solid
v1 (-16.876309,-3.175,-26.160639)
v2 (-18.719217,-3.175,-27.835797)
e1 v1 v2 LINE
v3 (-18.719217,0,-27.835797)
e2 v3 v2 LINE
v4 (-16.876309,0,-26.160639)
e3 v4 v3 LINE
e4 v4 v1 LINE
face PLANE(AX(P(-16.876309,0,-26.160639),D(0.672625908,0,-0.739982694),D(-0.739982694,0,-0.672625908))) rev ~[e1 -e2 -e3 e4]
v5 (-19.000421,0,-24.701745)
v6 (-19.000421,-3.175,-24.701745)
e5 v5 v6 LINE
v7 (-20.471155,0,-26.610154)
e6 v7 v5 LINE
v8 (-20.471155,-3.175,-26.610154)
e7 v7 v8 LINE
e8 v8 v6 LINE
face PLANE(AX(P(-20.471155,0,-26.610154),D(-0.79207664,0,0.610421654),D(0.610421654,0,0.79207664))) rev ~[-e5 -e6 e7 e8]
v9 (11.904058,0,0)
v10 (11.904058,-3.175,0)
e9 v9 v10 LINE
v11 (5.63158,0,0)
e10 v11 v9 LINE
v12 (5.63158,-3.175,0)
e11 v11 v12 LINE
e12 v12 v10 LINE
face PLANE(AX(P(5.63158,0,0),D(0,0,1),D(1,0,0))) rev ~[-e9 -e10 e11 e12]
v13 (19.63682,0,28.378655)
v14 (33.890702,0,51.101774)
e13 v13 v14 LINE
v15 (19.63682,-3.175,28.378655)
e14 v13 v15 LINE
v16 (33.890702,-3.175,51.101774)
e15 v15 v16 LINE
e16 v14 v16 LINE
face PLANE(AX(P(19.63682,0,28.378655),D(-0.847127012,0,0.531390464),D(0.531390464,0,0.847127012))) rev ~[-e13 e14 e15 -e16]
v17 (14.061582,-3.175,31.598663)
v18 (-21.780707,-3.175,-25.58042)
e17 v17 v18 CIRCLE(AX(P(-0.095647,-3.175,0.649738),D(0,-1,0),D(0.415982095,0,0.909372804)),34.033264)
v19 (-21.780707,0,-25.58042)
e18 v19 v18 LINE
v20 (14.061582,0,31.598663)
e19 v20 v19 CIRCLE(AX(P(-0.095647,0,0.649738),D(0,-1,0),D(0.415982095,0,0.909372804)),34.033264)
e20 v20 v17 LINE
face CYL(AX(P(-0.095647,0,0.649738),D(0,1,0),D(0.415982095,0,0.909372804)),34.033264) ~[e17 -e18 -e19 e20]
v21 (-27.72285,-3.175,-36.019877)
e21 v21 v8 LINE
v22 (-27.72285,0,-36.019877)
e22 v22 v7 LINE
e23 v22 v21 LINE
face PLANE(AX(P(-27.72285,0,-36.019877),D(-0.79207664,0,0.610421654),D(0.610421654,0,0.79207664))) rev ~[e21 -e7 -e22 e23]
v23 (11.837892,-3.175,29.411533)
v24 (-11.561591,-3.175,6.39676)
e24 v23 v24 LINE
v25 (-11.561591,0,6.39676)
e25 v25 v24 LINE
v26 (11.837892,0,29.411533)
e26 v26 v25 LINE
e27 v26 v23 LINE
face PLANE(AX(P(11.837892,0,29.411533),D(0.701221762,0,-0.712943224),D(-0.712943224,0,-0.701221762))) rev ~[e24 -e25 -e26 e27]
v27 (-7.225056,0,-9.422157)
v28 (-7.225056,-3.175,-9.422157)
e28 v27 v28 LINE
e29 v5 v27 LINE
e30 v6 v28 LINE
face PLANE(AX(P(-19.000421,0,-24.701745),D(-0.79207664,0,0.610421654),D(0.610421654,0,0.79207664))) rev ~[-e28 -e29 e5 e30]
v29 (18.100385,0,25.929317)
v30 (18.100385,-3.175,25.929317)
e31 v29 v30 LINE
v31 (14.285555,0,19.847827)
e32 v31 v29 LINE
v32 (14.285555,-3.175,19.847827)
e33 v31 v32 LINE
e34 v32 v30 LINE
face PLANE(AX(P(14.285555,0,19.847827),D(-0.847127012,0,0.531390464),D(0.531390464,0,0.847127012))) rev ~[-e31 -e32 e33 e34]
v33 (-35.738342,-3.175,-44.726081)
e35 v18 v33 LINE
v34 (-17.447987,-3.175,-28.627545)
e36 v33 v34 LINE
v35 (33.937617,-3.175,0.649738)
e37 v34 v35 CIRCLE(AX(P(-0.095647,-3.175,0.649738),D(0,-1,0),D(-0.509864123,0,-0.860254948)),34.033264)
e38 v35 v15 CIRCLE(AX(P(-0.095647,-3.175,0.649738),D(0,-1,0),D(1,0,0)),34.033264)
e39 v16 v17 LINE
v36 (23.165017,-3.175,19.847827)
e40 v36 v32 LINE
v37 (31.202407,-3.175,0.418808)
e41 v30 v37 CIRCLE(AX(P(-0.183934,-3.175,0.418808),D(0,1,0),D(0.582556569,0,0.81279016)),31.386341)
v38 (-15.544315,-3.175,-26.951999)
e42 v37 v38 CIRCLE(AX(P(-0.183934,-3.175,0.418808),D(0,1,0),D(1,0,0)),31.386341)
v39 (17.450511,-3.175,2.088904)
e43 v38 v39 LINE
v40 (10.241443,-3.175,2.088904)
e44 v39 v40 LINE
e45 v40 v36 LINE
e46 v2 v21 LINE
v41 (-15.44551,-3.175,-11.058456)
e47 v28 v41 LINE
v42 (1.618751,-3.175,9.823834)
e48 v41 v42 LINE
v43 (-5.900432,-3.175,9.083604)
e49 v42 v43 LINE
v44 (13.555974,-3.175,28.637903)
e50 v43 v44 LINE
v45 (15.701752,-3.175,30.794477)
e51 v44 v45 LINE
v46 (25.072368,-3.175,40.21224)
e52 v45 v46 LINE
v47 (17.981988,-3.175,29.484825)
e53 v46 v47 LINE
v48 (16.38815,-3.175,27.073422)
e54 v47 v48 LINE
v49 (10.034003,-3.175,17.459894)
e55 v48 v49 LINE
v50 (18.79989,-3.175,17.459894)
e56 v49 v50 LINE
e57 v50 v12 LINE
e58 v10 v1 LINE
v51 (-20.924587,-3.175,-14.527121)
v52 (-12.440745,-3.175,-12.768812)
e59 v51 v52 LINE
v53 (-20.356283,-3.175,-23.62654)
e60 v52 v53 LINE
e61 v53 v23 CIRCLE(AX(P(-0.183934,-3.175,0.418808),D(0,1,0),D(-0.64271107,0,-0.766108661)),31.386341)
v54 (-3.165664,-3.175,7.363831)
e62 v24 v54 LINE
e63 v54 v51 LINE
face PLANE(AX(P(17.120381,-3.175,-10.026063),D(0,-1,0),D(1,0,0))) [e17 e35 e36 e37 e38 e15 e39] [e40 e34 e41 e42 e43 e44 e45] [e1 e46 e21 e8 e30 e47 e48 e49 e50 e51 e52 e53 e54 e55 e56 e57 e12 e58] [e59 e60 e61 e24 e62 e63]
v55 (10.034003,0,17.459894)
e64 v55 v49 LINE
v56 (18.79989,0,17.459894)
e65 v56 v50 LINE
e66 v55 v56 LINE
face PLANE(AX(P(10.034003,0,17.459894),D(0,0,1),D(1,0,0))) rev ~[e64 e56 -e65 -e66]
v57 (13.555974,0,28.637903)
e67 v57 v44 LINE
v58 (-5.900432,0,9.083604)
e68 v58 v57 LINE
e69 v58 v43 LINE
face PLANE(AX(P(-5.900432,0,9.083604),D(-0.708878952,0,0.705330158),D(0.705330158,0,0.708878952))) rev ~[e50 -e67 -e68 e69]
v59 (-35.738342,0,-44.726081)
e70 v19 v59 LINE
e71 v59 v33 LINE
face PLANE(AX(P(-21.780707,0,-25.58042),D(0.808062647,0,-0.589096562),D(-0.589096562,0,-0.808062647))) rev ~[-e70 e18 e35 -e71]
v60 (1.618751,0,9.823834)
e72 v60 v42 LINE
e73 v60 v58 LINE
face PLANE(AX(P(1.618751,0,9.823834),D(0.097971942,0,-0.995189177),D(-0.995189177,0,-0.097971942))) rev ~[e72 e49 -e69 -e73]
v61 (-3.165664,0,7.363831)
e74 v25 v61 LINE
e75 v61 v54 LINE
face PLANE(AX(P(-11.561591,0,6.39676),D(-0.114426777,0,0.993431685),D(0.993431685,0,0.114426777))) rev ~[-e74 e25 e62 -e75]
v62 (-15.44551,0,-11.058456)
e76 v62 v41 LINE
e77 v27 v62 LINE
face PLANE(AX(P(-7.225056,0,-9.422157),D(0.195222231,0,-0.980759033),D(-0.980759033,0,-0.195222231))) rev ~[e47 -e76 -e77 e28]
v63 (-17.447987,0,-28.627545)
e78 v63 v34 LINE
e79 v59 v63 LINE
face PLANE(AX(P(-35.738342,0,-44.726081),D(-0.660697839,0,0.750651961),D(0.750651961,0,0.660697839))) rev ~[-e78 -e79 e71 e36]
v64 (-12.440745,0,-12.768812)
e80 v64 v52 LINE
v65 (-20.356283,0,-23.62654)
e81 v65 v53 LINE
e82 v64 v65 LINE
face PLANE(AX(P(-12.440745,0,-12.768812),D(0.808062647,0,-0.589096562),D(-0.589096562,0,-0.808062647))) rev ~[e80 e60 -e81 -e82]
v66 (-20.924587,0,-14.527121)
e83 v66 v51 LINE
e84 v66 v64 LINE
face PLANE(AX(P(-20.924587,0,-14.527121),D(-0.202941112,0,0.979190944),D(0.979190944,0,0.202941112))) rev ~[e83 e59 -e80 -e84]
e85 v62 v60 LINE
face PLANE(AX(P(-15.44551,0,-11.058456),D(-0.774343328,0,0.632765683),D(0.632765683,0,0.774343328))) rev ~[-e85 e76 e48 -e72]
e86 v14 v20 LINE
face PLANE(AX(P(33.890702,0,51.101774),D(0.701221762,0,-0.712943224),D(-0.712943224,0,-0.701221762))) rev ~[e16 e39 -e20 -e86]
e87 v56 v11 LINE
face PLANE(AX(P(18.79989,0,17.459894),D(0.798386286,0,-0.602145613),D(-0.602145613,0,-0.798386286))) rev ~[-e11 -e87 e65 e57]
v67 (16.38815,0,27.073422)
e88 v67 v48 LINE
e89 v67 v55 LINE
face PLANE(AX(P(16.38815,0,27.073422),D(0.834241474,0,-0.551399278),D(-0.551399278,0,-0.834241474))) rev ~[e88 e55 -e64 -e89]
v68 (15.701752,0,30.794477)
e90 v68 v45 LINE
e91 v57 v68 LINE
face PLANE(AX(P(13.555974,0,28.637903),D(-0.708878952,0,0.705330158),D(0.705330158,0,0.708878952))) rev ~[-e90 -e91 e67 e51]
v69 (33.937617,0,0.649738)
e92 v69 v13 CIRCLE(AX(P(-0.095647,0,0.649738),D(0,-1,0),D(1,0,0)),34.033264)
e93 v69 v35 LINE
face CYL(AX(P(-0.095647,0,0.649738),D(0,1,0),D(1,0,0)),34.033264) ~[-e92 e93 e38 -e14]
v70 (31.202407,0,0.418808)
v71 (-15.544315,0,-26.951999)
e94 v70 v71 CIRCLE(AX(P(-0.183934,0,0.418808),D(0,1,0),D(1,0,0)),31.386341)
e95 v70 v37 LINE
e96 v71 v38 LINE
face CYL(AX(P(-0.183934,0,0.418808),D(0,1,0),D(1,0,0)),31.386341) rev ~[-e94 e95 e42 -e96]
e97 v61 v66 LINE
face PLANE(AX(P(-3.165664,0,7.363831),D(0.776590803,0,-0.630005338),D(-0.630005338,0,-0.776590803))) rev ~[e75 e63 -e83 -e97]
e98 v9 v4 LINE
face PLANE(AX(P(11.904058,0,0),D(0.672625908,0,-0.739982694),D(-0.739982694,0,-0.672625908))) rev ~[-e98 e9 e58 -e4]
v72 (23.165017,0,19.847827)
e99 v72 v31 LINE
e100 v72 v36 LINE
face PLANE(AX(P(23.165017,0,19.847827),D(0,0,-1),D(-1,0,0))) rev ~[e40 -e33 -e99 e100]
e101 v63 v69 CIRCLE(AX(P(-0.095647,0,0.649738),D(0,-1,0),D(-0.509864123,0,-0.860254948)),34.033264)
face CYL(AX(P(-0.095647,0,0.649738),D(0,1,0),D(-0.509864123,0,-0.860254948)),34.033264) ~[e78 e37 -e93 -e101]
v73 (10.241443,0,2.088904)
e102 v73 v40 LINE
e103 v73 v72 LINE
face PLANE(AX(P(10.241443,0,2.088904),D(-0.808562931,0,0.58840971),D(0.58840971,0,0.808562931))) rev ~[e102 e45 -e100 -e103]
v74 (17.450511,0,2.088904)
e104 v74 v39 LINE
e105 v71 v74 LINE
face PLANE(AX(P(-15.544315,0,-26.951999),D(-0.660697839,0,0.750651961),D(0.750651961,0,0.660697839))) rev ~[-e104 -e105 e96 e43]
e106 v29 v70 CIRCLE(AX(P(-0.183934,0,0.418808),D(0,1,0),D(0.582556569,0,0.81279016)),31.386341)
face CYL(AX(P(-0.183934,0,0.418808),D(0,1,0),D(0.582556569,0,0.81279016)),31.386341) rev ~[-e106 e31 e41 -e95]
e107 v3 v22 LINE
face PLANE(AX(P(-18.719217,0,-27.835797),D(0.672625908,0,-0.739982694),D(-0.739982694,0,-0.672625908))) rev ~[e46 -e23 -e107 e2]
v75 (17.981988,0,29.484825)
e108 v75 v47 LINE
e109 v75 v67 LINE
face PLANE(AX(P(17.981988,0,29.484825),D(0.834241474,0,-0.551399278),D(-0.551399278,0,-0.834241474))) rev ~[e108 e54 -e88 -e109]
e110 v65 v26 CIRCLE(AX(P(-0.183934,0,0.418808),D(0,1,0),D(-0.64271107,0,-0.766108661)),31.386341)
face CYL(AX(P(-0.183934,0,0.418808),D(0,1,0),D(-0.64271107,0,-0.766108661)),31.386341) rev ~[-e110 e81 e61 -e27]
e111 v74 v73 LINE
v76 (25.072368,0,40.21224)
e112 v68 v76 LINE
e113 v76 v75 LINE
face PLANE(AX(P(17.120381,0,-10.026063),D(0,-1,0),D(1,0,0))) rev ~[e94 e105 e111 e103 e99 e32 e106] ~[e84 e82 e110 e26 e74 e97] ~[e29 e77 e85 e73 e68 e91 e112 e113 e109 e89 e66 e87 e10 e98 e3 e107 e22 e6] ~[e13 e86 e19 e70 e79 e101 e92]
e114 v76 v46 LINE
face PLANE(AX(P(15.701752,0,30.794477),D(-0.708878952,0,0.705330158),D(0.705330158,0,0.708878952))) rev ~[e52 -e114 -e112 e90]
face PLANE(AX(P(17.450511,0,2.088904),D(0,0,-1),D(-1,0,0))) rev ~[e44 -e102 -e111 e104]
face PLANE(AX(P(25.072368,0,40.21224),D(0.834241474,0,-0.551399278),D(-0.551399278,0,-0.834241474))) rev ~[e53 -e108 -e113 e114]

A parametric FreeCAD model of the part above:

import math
import FreeCAD as App
import Part
import Sketcher

V = App.Vector
Q = App.Units.Quantity


def add_polygon(sketch, points):
    """Adds a closed chain of lines whose ends are joined by coincident constraints."""
    first, n = sketch.GeometryCount, len(points)
    for a, b in zip(points, points[1:] + points[:1]):
        sketch.addGeometry(Part.LineSegment(App.Vector(*a, 0), App.Vector(*b, 0)), False)
    for i in range(n):
        sketch.addConstraint(Sketcher.Constraint("Coincident", first + i, 2, first + (i + 1) % n, 1))

doc = App.newDocument("Part")
body = doc.addObject("PartDesign::Body", "Body")

# Sketch on XZ plane
sketch1 = body.newObject("Sketcher::SketchObject", "Sketch")
sketch1.AttachmentSupport = (doc.getObject("XZ_Plane"), [""])
sketch1.MapMode = "FlatFace"
sketch1.addGeometry(Part.LineSegment(V(-21.780707, -25.58042, 0), V(-35.738342, -44.726081, 0)), False)  # 0
sketch1.addGeometry(Part.LineSegment(V(-35.738342, -44.726081, 0), V(-17.447987, -28.627545, 0)), False)  # 1
sketch1.addGeometry(Part.ArcOfCircle(Part.Circle(V(-0.095647, 0.649738, 0), V(0, 0, 1), 34.033264), math.radians(-120.654779), math.radians(0)), False)  # 2
sketch1.addGeometry(Part.ArcOfCircle(Part.Circle(V(-0.095647, 0.649738, 0), V(0, 0, 1), 34.033264), math.radians(0), math.radians(54.563564)), False)  # 3
sketch1.addGeometry(Part.LineSegment(V(19.63682, 28.378655, 0), V(33.890702, 51.101774, 0)), False)  # 4
sketch1.addGeometry(Part.LineSegment(V(33.890702, 51.101774, 0), V(14.061582, 31.598663, 0)), False)  # 5
sketch1.addGeometry(Part.ArcOfCircle(Part.Circle(V(-0.095647, 0.649738, 0), V(0, 0, 1), 34.033264), math.radians(65.418821), math.radians(230.418698)), False)  # 6
sketch1.addGeometry(Part.ArcOfCircle(Part.Circle(V(-0.183934, 0.418808, 0), V(0, 0, 1), 31.386341), math.radians(0), math.radians(54.36944)), False)  # 7
sketch1.addGeometry(Part.ArcOfCircle(Part.Circle(V(-0.183934, 0.418808, 0), V(0, 0, 1), 31.386341), math.radians(-119.300957), math.radians(0)), False)  # 8
sketch1.addGeometry(Part.LineSegment(V(-15.544315, -26.951999, 0), V(17.450511, 2.088904, 0)), False)  # 9
sketch1.addGeometry(Part.LineSegment(V(17.450511, 2.088904, 0), V(10.241443, 2.088904, 0)), False)  # 10
sketch1.addGeometry(Part.LineSegment(V(10.241443, 2.088904, 0), V(23.165017, 19.847827, 0)), False)  # 11
sketch1.addGeometry(Part.LineSegment(V(23.165017, 19.847827, 0), V(14.285555, 19.847827, 0)), False)  # 12
sketch1.addGeometry(Part.LineSegment(V(14.285555, 19.847827, 0), V(18.100385, 25.929317, 0)), False)  # 13
add_polygon(sketch1, [(-16.876309, -26.160639), (-18.719217, -27.835797), (-27.72285, -36.019877), (-20.471155, -26.610154), (-19.000421, -24.701745), (-7.225056, -9.422157), (-15.44551, -11.058456), (1.618751, 9.823834), (-5.900432, 9.083604), (13.555974, 28.637903), (15.701752, 30.794477), (25.072368, 40.21224), (17.981988, 29.484825), (16.38815, 27.073422), (10.034003, 17.459894), (18.79989, 17.459894), (5.63158, 0), (11.904058, 0)])  # lines 14-31
sketch1.addGeometry(Part.ArcOfCircle(Part.Circle(V(-0.183934, 0.418808, 0), V(0, 0, 1), 31.386341), math.radians(67.478673), math.radians(230.005725)), False)  # 32
sketch1.addGeometry(Part.LineSegment(V(11.837892, 29.411533, 0), V(-11.561591, 6.39676, 0)), False)  # 33
sketch1.addGeometry(Part.LineSegment(V(-11.561591, 6.39676, 0), V(-3.165664, 7.363831, 0)), False)  # 34
sketch1.addGeometry(Part.LineSegment(V(-3.165664, 7.363831, 0), V(-20.924587, -14.527121, 0)), False)  # 35
sketch1.addGeometry(Part.LineSegment(V(-20.924587, -14.527121, 0), V(-12.440745, -12.768812, 0)), False)  # 36
sketch1.addGeometry(Part.LineSegment(V(-12.440745, -12.768812, 0), V(-20.356283, -23.62654, 0)), False)  # 37
sketch1.addConstraint([
    Sketcher.Constraint("Coincident", 0, 2, 1, 1),
    Sketcher.Constraint("Coincident", 1, 2, 2, 1),
    Sketcher.Constraint("Tangent", 2, 2, 3, 1),
    Sketcher.Constraint("Coincident", 3, 2, 4, 1),
    Sketcher.Constraint("Coincident", 4, 2, 5, 1),
    Sketcher.Constraint("Coincident", 5, 2, 6, 1),
    Sketcher.Constraint("Coincident", 6, 2, 0, 1),
    Sketcher.Constraint("Tangent", 7, 1, 8, 2),
    Sketcher.Constraint("Coincident", 8, 1, 9, 1),
    Sketcher.Constraint("Coincident", 9, 2, 10, 1),
    Sketcher.Constraint("Coincident", 10, 2, 11, 1),
    Sketcher.Constraint("Coincident", 11, 2, 12, 1),
    Sketcher.Constraint("Coincident", 12, 2, 13, 1),
    Sketcher.Constraint("Coincident", 13, 2, 7, 2),
    Sketcher.Constraint("Coincident", 32, 1, 33, 1),
    Sketcher.Constraint("Coincident", 33, 2, 34, 1),
    Sketcher.Constraint("Coincident", 34, 2, 35, 1),
    Sketcher.Constraint("Coincident", 35, 2, 36, 1),
    Sketcher.Constraint("Coincident", 36, 2, 37, 1),
    Sketcher.Constraint("Coincident", 37, 2, 32, 2),
    Sketcher.Constraint("Horizontal", 10),
    Sketcher.Constraint("Horizontal", 12),
    Sketcher.Constraint("Horizontal", 28),
    Sketcher.Constraint("Horizontal", 30),
    Sketcher.Constraint("Coincident", 6, 3, 2, 3),
    Sketcher.Constraint("Coincident", 32, 3, 7, 3),
    Sketcher.Constraint("Equal", 2, 3),
    Sketcher.Constraint("Equal", 3, 6),
    Sketcher.Constraint("Equal", 7, 8),
    Sketcher.Constraint("Equal", 8, 32),
    Sketcher.Constraint("PointOnObject", 29, 2, -1),
    Sketcher.Constraint("Parallel", 1, 9),
    Sketcher.Constraint("Parallel", 4, 13),
    Sketcher.Constraint("Parallel", 14, 15),
    Sketcher.Constraint("Parallel", 16, 17),
    Sketcher.Constraint("Parallel", 17, 18),
    Sketcher.Constraint("Parallel", 22, 23),
    Sketcher.Constraint("Parallel", 23, 24),
    Sketcher.Constraint("Parallel", 25, 26),
    Sketcher.Constraint("Parallel", 26, 27),
    Sketcher.Constraint("Parallel", 15, 31),
    Sketcher.Constraint("Parallel", 5, 33),
    Sketcher.Constraint("Parallel", 0, 37),
    Sketcher.Constraint("Horizontal", 6, 3, 2, 2),
    Sketcher.Constraint("Horizontal", 32, 3, 7, 1),
    Sketcher.Constraint("Angle", 16, Q("52.380002 deg")),
    Sketcher.Constraint("Radius", 7, Q("31.386341 mm")),
    Sketcher.Constraint("Radius", 2, Q("34.033264 mm")),
    Sketcher.Constraint("DistanceX", 15, 2, 16, 2, Q("0.2854998 in")),
    Sketcher.Constraint("DistanceX", 10, 2, 10, 1, Q("7.209068 mm")),
    Sketcher.Constraint("DistanceX", 30, 1, 30, 2, Q("6.272478 mm")),
    Sketcher.Constraint("DistanceX", -1, 1, 4, 2, Q("33.890702 mm")),
    Sketcher.Constraint("DistanceY", 8, 1, -1, 1, Q("26.951999 mm")),
    Sketcher.Constraint("DistanceX", 14, 2, 8, 1, Q("3.174901 mm")),
    Sketcher.Constraint("DistanceY", 1, 2, 17, 2, Q("3.9258 mm")),
    Sketcher.Constraint("DistanceY", 19, 2, 18, 2, Q("1.636299 mm")),
    Sketcher.Constraint("DistanceX", 21, 2, 7, 3, Q("5.716499 mm")),
    Sketcher.Constraint("DistanceY", 6, 2, 35, 2, Q("11.0533 mm")),
    Sketcher.Constraint("DistanceY", 31, 2, 37, 2, Q("2.5341 mm")),
    Sketcher.Constraint("Distance", 1, Q("24.365958 mm")),
    Sketcher.Constraint("Distance", 13, Q("7.178959 mm")),
    Sketcher.Constraint("Distance", 20, Q("26.96774 mm")),
    Sketcher.Constraint("Distance", 21, Q("7.555531 mm")),
    Sketcher.Constraint("Distance", 22, Q("27.584822 mm")),
    Sketcher.Constraint("Distance", 23, Q("3.042231 mm")),
    Sketcher.Constraint("Distance", 29, Q("21.86898 mm")),
    Sketcher.Constraint("Distance", 34, Q("8.451439 mm")),
    Sketcher.Constraint("Distance", 37, Q("13.436741 mm")),
    Sketcher.Constraint("DistanceX", 12, 2, 12, 1, Q("8.879462 mm")),
    Sketcher.Constraint("DistanceX", 28, 1, 28, 2, Q("8.765887 mm")),
    Sketcher.Constraint("DistanceY", -1, 1, 2, 3, Q("0.649738 mm")),
    Sketcher.Constraint("DistanceX", 0, 2, -1, 1, Q("35.738342 mm")),
    Sketcher.Constraint("DistanceY", 0, 2, -1, 1, Q("44.726081 mm")),
    Sketcher.Constraint("DistanceX", -1, 1, 3, 2, Q("19.63682 mm")),
    Sketcher.Constraint("DistanceX", -1, 1, 5, 2, Q("14.061582 mm")),
    Sketcher.Constraint("DistanceY", 6, 2, -1, 1, Q("25.58042 mm")),
    Sketcher.Constraint("DistanceX", -1, 1, 9, 2, Q("17.450511 mm")),
    Sketcher.Constraint("DistanceX", 15, 2, -1, 1, Q("27.72285 mm")),
    Sketcher.Constraint("DistanceX", 17, 2, -1, 1, Q("19.000421 mm")),
    Sketcher.Constraint("DistanceX", 19, 2, -1, 1, Q("15.44551 mm")),
    Sketcher.Constraint("DistanceX", -1, 1, 20, 2, Q("1.618751 mm")),
    Sketcher.Constraint("DistanceX", -1, 1, 23, 2, Q("15.701752 mm")),
    Sketcher.Constraint("DistanceY", -1, 1, 24, 2, Q("40.21224 mm")),
    Sketcher.Constraint("DistanceX", -1, 1, 26, 2, Q("16.38815 mm")),
    Sketcher.Constraint("DistanceY", -1, 1, 26, 2, Q("27.073422 mm")),
    Sketcher.Constraint("DistanceX", -1, 1, 28, 2, Q("18.79989 mm")),
    Sketcher.Constraint("DistanceX", -1, 1, 29, 2, Q("5.63158 mm")),
    Sketcher.Constraint("DistanceX", 31, 2, -1, 1, Q("16.876309 mm")),
    Sketcher.Constraint("DistanceY", 31, 2, -1, 1, Q("26.160639 mm")),
    Sketcher.Constraint("DistanceX", -1, 1, 32, 1, Q("11.837892 mm")),
    Sketcher.Constraint("DistanceX", 33, 2, -1, 1, Q("11.561591 mm")),
    Sketcher.Constraint("DistanceY", -1, 1, 33, 2, Q("6.39676 mm")),
    Sketcher.Constraint("DistanceY", -1, 1, 34, 2, Q("7.363831 mm")),
    Sketcher.Constraint("DistanceY", 7, 3, 3, 3, Q("0.230931 mm")),
    Sketcher.Constraint("DistanceX", 7, 3, 2, 2, Q("34.121551 mm")),
    Sketcher.Constraint("DistanceY", 11, 2, 3, 2, Q("8.530828 mm")),
    Sketcher.Constraint("DistanceX", 25, 2, 3, 2, Q("1.654832 mm")),
    Sketcher.Constraint("DistanceX", 6, 2, 35, 2, Q("0.85612 mm")),
])
pad1 = body.newObject("PartDesign::Pad", "Pad")
pad1.Profile = sketch1
pad1.Length = Q("0.125 in")

doc.recompute()
